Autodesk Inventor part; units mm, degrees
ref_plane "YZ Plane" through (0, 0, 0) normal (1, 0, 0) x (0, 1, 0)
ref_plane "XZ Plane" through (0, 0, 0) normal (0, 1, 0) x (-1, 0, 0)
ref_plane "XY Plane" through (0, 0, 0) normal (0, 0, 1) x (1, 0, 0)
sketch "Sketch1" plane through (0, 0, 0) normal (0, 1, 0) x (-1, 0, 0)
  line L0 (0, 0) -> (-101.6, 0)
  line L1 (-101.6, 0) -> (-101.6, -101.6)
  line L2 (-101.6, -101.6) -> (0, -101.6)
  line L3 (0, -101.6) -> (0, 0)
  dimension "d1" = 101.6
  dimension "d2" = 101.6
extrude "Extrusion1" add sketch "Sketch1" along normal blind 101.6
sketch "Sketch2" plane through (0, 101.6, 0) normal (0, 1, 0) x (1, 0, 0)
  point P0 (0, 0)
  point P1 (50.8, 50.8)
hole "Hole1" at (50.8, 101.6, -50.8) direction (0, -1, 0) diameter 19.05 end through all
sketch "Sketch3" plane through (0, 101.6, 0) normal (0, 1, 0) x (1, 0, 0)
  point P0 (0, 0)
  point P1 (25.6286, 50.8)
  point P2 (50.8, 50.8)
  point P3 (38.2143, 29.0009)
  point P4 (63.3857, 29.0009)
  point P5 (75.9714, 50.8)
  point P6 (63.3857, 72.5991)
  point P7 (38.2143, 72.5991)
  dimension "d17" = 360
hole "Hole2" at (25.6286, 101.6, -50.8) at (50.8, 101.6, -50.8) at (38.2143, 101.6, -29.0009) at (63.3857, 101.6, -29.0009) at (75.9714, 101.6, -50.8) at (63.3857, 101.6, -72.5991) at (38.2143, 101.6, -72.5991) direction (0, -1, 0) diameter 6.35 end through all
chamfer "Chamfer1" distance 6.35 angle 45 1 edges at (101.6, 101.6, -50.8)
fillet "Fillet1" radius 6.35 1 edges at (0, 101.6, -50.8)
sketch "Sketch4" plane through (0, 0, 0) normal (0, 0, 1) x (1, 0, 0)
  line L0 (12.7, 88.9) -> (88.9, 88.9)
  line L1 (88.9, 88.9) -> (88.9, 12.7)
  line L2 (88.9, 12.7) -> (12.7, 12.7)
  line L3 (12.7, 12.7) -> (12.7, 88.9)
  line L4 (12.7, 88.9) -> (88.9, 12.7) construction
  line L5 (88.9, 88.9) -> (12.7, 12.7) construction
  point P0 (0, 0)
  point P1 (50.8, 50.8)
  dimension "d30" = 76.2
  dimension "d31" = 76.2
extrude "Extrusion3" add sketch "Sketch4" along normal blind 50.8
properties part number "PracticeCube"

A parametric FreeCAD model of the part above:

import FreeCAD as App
import Part
import Sketcher

V = App.Vector
Q = App.Units.Quantity


def edges_at(feature, points):
    """Names of the edges that pass closest to the given points."""
    edges = feature.Shape.Edges
    near = lambda p: min(range(len(edges)), key=lambda i: edges[i].distToShape(Part.Vertex(*p))[0])
    return sorted({f"Edge{near(p) + 1}" for p in points})


def add_polygon(sketch, points):
    """Adds a closed chain of lines whose ends are joined by coincident constraints."""
    first, n = sketch.GeometryCount, len(points)
    for a, b in zip(points, points[1:] + points[:1]):
        sketch.addGeometry(Part.LineSegment(App.Vector(*a, 0), App.Vector(*b, 0)), False)
    for i in range(n):
        sketch.addConstraint(Sketcher.Constraint("Coincident", first + i, 2, first + (i + 1) % n, 1))

doc = App.newDocument("Part")
params = doc.addObject("Spreadsheet::Sheet", "Params")
for row, (alias, value) in enumerate([
    ("sketch1_width", "4 in"),
    ("pad1_length", "4 in"),
    ("sketch2_diameter", "0.75 in"),
    ("hole_diameter", "0.75 in"),
    ("sketch3_diameter", "0.25 in"),
    ("hole2_diameter", "0.25 in"),
    ("chamfer_size", "0.25 in"),
    ("fillet_radius", "0.25 in"),
    ("sketch4_width", "3 in"),
    ("pad2_length", "2 in"),
], start=1):
    params.set(f"A{row}", alias)
    params.set(f"B{row}", "=" + value)
    params.setAlias(f"B{row}", alias)

body = doc.addObject("PartDesign::Body", "Body")

# Sketch on XZ plane
sketch1 = body.newObject("Sketcher::SketchObject", "Sketch")
sketch1.AttachmentSupport = (doc.getObject("XZ_Plane"), [""])
sketch1.MapMode = "FlatFace"
add_polygon(sketch1, [(0, -102), (0, 0), (102, 0), (102, -102)])  # lines 0-3
sketch1.addConstraint(Sketcher.Constraint("Vertical", 0))
sketch1.addConstraint(Sketcher.Constraint("Horizontal", 1))
sketch1.addConstraint(Sketcher.Constraint("Vertical", 2))
sketch1.addConstraint(Sketcher.Constraint("Horizontal", 3))
sketch1.addConstraint(Sketcher.Constraint("Coincident", 0, 2, -1, 1))
sketch1.addConstraint(Sketcher.Constraint("Equal", 3, 0))
sketch1.addConstraint(Sketcher.Constraint("DistanceX", 1, 1, 1, 2, Q("4 in")))
sketch1.setExpression("Constraints[10]", "Params.sketch1_width")
pad1 = body.newObject("PartDesign::Pad", "Pad")
pad1.Profile = sketch1
pad1.setExpression("Length", "Params.pad1_length")
pad1.Reversed = True

# Sketch on XZ plane
sketch2 = body.newObject("Sketcher::SketchObject", "Sketch001")
sketch2.AttachmentSupport = (doc.getObject("XZ_Plane"), [""])
sketch2.MapMode = "FlatFace"
sketch2.AttachmentOffset = App.Placement(V(0, 0, -4 * 25.4), App.Rotation())
sketch2.addGeometry(Part.Circle(V(51, -51, 0), V(0, 0, 1), 10), False)
sketch2.addConstraint(Sketcher.Constraint("Diameter", 0, Q("0.75 in")))
sketch2.addConstraint(Sketcher.Constraint("DistanceX", -1, 1, 0, 3, Q("2 in")))
sketch2.addConstraint(Sketcher.Constraint("DistanceY", 0, 3, -1, 1, Q("2 in")))
sketch2.setExpression("Constraints[0]", "Params.sketch2_diameter")
doc.recompute()
hole = body.newObject("PartDesign::Hole", "Hole")
hole.Profile = sketch2
hole.ThreadType = "None"
hole.setExpression("Diameter", "Params.hole_diameter")
hole.DepthType = "ThroughAll"
hole.Reversed = True

# Sketch on XZ plane
sketch3 = body.newObject("Sketcher::SketchObject", "Sketch002")
sketch3.AttachmentSupport = (doc.getObject("XZ_Plane"), [""])
sketch3.MapMode = "FlatFace"
sketch3.AttachmentOffset = App.Placement(V(0, 0, -4 * 25.4), App.Rotation())
sketch3.addGeometry(Part.Circle(V(25.6, -50.8, 0), V(0, 0, 1), 3.2), False)
sketch3.addGeometry(Part.Circle(V(50.8, -50.8, 0), V(0, 0, 1), 3.2), False)
sketch3.addGeometry(Part.Circle(V(38.2, -29, 0), V(0, 0, 1), 3.2), False)
sketch3.addGeometry(Part.Circle(V(63.4, -29, 0), V(0, 0, 1), 3.2), False)
sketch3.addGeometry(Part.Circle(V(76, -50.8, 0), V(0, 0, 1), 3.2), False)
sketch3.addGeometry(Part.Circle(V(63.4, -72.6, 0), V(0, 0, 1), 3.2), False)
sketch3.addGeometry(Part.Circle(V(38.2, -72.6, 0), V(0, 0, 1), 3.2), False)
sketch3.addConstraint(Sketcher.Constraint("Equal", 0, 1))
sketch3.addConstraint(Sketcher.Constraint("Equal", 1, 2))
sketch3.addConstraint(Sketcher.Constraint("Equal", 2, 3))
sketch3.addConstraint(Sketcher.Constraint("Equal", 3, 4))
sketch3.addConstraint(Sketcher.Constraint("Equal", 4, 5))
sketch3.addConstraint(Sketcher.Constraint("Equal", 5, 6))
sketch3.addConstraint(Sketcher.Constraint("Horizontal", 0, 3, 1, 3))
sketch3.addConstraint(Sketcher.Constraint("Horizontal", 2, 3, 3, 3))
sketch3.addConstraint(Sketcher.Constraint("Horizontal", 1, 3, 4, 3))
sketch3.addConstraint(Sketcher.Constraint("Horizontal", 5, 3, 6, 3))
sketch3.addConstraint(Sketcher.Constraint("Vertical", 3, 3, 5, 3))
sketch3.addConstraint(Sketcher.Constraint("Vertical", 2, 3, 6, 3))
sketch3.addConstraint(Sketcher.Constraint("Diameter", 0, Q("0.25 in")))
sketch3.addConstraint(Sketcher.Constraint("DistanceY", 0, 3, -1, 1, Q("2 in")))
sketch3.addConstraint(Sketcher.Constraint("DistanceX", -1, 1, 1, 3, Q("2 in")))
sketch3.addConstraint(Sketcher.Constraint("DistanceX", -1, 1, 0, 3, Q("1.009 in")))
sketch3.addConstraint(Sketcher.Constraint("DistanceX", -1, 1, 4, 3, Q("2.991 in")))
sketch3.addConstraint(Sketcher.Constraint("DistanceX", 2, 3, 3, 3, Q("0.991 in")))
sketch3.addConstraint(Sketcher.Constraint("DistanceX", -1, 1, 2, 3, Q("1.5045 in")))
sketch3.addConstraint(Sketcher.Constraint("DistanceY", 2, 3, -1, 1, Q("29.001 mm")))
sketch3.addConstraint(Sketcher.Constraint("DistanceY", 5, 3, -1, 1, Q("72.599 mm")))
sketch3.setExpression("Constraints[12]", "Params.sketch3_diameter")
doc.recompute()
hole2 = body.newObject("PartDesign::Hole", "Hole001")
hole2.Profile = sketch3
hole2.ThreadType = "None"
hole2.setExpression("Diameter", "Params.hole2_diameter")
hole2.DepthType = "ThroughAll"
hole2.Reversed = True
doc.recompute()

chamfer = body.newObject("PartDesign::Chamfer", "Chamfer")
chamfer.Base = (hole2, edges_at(hole2, [(101.6, 101.6, -50.8)]))
chamfer.setExpression("Size", "Params.chamfer_size")
doc.recompute()

fillet = body.newObject("PartDesign::Fillet", "Fillet")
fillet.Base = (chamfer, edges_at(chamfer, [(0, 101.6, -50.8)]))
fillet.setExpression("Radius", "Params.fillet_radius")

# Sketch on XY plane
sketch4 = body.newObject("Sketcher::SketchObject", "Sketch003")
sketch4.AttachmentSupport = (doc.getObject("XY_Plane"), [""])
sketch4.MapMode = "FlatFace"
add_polygon(sketch4, [(89, 89), (13, 89), (13, 13), (89, 13)])  # lines 0-3
sketch4.addConstraint(Sketcher.Constraint("Horizontal", 0))
sketch4.addConstraint(Sketcher.Constraint("Vertical", 1))
sketch4.addConstraint(Sketcher.Constraint("Horizontal", 2))
sketch4.addConstraint(Sketcher.Constraint("Vertical", 3))
sketch4.addConstraint(Sketcher.Constraint("Equal", 2, 1))
sketch4.addConstraint(Sketcher.Constraint("DistanceX", 0, 2, 0, 1, Q("3 in")))
sketch4.addConstraint(Sketcher.Constraint("DistanceX", -1, 1, 0, 2, Q("0.5 in")))
sketch4.addConstraint(Sketcher.Constraint("DistanceY", -1, 1, 0, 2, Q("3.5 in")))
sketch4.setExpression("Constraints[9]", "Params.sketch4_width")
pad2 = body.newObject("PartDesign::Pad", "Pad001")
pad2.Profile = sketch4
pad2.setExpression("Length", "Params.pad2_length")

doc.recompute()
